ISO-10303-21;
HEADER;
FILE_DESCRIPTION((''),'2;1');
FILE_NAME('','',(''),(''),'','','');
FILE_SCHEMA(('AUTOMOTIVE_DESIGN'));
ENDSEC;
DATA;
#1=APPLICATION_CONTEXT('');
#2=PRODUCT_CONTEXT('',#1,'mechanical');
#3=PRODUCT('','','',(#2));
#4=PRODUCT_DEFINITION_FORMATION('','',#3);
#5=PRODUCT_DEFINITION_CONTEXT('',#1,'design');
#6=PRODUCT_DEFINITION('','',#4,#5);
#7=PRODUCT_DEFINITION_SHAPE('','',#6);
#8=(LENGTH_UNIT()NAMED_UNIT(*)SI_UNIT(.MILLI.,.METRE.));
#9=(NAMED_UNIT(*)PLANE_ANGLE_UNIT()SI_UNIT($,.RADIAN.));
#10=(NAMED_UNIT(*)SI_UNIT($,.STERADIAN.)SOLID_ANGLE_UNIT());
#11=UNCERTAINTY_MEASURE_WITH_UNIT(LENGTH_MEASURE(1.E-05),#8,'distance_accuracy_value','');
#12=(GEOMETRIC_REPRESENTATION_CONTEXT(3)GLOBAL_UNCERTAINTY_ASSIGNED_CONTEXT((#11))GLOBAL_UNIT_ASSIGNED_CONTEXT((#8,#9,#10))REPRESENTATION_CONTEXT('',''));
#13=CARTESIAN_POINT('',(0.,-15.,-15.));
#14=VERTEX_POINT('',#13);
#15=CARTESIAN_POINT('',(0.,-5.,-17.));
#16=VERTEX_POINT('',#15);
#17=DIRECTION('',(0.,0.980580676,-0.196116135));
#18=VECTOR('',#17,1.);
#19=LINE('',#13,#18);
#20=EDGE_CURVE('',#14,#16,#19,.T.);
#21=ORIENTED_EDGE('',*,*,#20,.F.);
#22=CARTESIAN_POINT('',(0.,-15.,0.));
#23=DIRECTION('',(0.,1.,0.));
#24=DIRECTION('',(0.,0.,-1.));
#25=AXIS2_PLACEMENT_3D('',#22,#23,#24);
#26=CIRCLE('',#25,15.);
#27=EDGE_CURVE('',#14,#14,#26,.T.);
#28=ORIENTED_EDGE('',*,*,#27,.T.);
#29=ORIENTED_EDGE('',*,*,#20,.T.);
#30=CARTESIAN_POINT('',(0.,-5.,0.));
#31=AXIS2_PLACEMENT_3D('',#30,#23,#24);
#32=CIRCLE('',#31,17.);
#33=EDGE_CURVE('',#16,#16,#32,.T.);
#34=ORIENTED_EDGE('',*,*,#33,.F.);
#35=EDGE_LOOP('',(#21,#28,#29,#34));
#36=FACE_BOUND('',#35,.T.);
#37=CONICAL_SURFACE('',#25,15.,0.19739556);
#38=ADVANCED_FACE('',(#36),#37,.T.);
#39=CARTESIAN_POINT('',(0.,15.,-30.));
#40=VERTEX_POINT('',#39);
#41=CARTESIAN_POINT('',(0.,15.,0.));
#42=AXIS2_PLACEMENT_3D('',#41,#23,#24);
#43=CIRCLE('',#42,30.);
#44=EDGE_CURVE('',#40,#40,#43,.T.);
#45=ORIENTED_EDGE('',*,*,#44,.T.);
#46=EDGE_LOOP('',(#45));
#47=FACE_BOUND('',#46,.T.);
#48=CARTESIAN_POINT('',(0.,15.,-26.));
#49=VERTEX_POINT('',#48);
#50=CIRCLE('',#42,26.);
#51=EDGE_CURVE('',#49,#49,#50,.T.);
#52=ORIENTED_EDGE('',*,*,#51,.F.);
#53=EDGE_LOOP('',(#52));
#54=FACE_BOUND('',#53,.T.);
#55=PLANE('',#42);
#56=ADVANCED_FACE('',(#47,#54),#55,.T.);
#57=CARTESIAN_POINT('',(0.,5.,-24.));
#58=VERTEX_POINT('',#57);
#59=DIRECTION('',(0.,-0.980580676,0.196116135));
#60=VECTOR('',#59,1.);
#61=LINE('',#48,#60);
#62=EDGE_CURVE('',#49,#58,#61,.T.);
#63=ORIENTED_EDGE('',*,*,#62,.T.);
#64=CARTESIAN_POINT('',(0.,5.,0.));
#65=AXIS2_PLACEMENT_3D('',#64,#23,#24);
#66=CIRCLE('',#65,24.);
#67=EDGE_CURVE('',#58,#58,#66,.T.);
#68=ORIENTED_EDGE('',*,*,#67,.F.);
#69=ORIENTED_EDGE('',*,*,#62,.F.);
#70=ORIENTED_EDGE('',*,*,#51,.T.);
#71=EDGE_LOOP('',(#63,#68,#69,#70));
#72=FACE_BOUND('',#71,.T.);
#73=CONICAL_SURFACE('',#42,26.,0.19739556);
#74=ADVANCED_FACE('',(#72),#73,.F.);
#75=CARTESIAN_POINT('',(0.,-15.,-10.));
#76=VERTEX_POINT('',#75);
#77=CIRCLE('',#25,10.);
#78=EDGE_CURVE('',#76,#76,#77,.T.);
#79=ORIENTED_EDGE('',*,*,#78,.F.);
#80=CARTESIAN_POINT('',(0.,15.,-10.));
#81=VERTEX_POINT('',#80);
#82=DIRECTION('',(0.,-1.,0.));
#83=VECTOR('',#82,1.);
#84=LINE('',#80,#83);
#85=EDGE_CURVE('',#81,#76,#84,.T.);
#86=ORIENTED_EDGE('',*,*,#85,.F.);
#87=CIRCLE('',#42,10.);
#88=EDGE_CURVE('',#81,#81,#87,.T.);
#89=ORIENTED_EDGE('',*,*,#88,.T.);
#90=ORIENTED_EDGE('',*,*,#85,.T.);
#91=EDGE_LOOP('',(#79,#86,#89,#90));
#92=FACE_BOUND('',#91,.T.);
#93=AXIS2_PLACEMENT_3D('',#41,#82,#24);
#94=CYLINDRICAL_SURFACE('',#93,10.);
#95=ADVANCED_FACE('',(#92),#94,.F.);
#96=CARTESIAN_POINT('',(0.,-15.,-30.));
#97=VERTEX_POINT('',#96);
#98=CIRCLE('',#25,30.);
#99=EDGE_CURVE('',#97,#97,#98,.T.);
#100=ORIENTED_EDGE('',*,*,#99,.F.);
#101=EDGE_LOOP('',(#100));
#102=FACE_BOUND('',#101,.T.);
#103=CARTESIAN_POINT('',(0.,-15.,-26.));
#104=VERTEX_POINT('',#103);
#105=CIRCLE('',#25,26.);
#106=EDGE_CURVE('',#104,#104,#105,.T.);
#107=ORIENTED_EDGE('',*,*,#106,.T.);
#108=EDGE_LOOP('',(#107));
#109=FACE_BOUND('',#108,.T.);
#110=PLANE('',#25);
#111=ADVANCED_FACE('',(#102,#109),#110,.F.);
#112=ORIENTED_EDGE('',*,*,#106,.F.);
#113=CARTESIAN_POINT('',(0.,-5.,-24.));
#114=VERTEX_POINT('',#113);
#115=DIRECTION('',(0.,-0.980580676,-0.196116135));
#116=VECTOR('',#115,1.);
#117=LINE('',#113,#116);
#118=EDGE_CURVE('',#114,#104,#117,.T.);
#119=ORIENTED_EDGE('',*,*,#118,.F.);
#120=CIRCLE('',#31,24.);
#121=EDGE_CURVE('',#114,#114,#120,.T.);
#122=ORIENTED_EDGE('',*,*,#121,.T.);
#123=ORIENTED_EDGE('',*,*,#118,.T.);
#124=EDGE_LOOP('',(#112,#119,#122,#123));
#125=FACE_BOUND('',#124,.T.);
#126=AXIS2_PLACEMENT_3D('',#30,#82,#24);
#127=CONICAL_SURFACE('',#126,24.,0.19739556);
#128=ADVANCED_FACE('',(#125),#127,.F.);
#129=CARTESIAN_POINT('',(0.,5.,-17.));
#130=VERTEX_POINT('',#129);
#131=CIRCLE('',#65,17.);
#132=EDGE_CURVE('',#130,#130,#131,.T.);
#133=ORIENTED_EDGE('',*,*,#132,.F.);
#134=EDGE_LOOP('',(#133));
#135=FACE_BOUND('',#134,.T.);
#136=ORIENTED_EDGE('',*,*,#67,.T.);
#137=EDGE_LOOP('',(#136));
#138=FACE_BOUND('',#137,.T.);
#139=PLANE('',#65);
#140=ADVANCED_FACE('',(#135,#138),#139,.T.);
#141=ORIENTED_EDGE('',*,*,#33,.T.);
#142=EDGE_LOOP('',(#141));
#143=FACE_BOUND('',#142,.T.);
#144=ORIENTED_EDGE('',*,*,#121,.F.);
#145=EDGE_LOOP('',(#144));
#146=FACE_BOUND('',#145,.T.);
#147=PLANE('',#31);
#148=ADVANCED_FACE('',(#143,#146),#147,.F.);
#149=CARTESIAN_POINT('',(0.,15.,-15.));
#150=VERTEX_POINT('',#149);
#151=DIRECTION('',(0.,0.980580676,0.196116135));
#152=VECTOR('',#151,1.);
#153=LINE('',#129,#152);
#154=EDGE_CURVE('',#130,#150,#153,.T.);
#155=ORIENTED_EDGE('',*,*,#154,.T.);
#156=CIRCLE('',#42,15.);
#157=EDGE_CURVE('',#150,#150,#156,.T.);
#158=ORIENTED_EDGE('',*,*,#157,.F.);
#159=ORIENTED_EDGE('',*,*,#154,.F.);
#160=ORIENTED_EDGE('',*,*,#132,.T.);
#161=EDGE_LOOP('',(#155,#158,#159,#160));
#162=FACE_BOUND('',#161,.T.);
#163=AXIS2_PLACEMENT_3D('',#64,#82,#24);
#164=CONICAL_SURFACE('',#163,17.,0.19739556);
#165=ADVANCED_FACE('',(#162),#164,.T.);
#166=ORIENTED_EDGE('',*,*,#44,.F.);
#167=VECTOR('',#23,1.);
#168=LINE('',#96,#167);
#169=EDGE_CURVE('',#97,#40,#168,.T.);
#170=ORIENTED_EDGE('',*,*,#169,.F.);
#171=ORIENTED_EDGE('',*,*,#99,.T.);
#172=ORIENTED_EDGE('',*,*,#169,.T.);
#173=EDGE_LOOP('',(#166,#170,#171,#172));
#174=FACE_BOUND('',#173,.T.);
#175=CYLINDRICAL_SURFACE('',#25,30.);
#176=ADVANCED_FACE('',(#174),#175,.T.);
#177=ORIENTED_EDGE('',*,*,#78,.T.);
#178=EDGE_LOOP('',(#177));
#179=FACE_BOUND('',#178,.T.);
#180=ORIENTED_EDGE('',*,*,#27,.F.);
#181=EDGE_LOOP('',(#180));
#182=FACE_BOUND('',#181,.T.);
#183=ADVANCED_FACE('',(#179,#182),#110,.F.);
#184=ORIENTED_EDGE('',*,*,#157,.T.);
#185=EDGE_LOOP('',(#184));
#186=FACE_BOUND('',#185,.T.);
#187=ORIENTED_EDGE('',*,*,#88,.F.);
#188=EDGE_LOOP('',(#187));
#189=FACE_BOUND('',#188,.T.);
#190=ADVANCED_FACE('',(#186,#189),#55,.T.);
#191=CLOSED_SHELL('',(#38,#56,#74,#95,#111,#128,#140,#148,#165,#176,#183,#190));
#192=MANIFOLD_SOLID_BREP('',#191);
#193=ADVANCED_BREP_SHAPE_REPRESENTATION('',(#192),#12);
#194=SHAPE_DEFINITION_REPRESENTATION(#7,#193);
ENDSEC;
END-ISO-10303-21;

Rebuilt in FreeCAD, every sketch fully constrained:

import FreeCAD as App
import Part
import Sketcher
from FreeCAD import Vector
Q = App.Units.Quantity


def add_polygon(sketch, points):
    """Adds a closed chain of lines whose ends are joined by coincident constraints."""
    first, n = sketch.GeometryCount, len(points)
    for a, b in zip(points, points[1:] + points[:1]):
        sketch.addGeometry(Part.LineSegment(App.Vector(*a, 0), App.Vector(*b, 0)), False)
    for i in range(n):
        sketch.addConstraint(Sketcher.Constraint("Coincident", first + i, 2, first + (i + 1) % n, 1))

doc = App.newDocument("Part")
body = doc.addObject("PartDesign::Body", "Body")

sketch1 = body.newObject("Sketcher::SketchObject", "Sketch")
sketch1.AttachmentSupport = (doc.getObject("YZ_Plane"), [""])
sketch1.MapMode = "FlatFace"
add_polygon(sketch1, [(-15, -30), (15, -30), (15, -26), (5, -24), (5, -17), (15, -15), (15, -10), (-15, -10), (-15, -15), (-5, -17), (-5, -24), (-15, -26)])
sketch1.addConstraint(Sketcher.Constraint("Horizontal", 0))
sketch1.addConstraint(Sketcher.Constraint("Vertical", 1))
sketch1.addConstraint(Sketcher.Constraint("Vertical", 3))
sketch1.addConstraint(Sketcher.Constraint("Vertical", 5))
sketch1.addConstraint(Sketcher.Constraint("Horizontal", 6))
sketch1.addConstraint(Sketcher.Constraint("Vertical", 7))
sketch1.addConstraint(Sketcher.Constraint("Vertical", 9))
sketch1.addConstraint(Sketcher.Constraint("Vertical", 11))
sketch1.addConstraint(Sketcher.Constraint("Symmetric", 4, 2, 7, 2, -2))
sketch1.addConstraint(Sketcher.Constraint("Symmetric", 3, 2, 8, 2, -2))
sketch1.addConstraint(Sketcher.Constraint("Symmetric", 1, 2, 10, 2, -2))
sketch1.addConstraint(Sketcher.Constraint("Parallel", 2, 8))
sketch1.addConstraint(Sketcher.Constraint("Parallel", 4, 10))
sketch1.addConstraint(Sketcher.Constraint("Vertical", 1, 2, 4, 2))
sketch1.addConstraint(Sketcher.Constraint("DistanceX", 0, 1, 0, 2, Q("30 mm")))
sketch1.addConstraint(Sketcher.Constraint("DistanceY", 1, 1, 1, 2, Q("4 mm")))
sketch1.addConstraint(Sketcher.Constraint("DistanceY", 3, 1, 3, 2, Q("7 mm")))
sketch1.addConstraint(Sketcher.Constraint("DistanceY", 5, 1, 5, 2, Q("5 mm")))
sketch1.addConstraint(Sketcher.Constraint("DistanceY", 0, 2, -1, 1, Q("30 mm")))
sketch1.addConstraint(Sketcher.Constraint("DistanceX", -1, 1, 2, 2, Q("5 mm")))
sketch1.addConstraint(Sketcher.Constraint("DistanceY", 2, 2, -1, 1, Q("24 mm")))
revolution = body.newObject("PartDesign::Revolution", "Revolution")
revolution.Profile = sketch1
revolution.ReferenceAxis = (sketch1, ["H_Axis"])
revolution.Angle = 360

doc.recompute()
